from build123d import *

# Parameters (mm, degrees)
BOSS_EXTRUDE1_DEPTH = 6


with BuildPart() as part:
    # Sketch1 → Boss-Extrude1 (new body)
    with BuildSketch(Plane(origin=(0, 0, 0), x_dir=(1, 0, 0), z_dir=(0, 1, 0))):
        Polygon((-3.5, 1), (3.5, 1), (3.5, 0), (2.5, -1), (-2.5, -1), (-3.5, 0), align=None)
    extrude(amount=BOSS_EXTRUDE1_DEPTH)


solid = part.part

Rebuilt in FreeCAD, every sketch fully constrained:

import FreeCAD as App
import Part
import Sketcher

V = App.Vector


def add_polygon(sketch, points):
    """Adds a closed chain of lines whose ends are joined by coincident constraints."""
    first, n = sketch.GeometryCount, len(points)
    for a, b in zip(points, points[1:] + points[:1]):
        sketch.addGeometry(Part.LineSegment(App.Vector(*a, 0), App.Vector(*b, 0)), False)
    for i in range(n):
        sketch.addConstraint(Sketcher.Constraint("Coincident", first + i, 2, first + (i + 1) % n, 1))

doc = App.newDocument("Part")
body = doc.addObject("PartDesign::Body", "Body")

# Sketch on XZ plane
sketch1 = doc.addObject("Sketcher::SketchObject", "Sketch")
body.addObject(sketch1)
sketch1.AttachmentSupport = (doc.XZ_Plane, [""])
sketch1.MapMode = "FlatFace"
add_polygon(sketch1, [(3.5, -1), (-3.5, -1), (-3.5, 0), (-2.5, 1), (2.5, 1), (3.5, 0)])  # lines 0-5
sketch1.addConstraint([
    Sketcher.Constraint("Horizontal", 0),
    Sketcher.Constraint("Vertical", 1),
    Sketcher.Constraint("Horizontal", 3),
    Sketcher.Constraint("Vertical", 5),
    Sketcher.Constraint("Symmetric", 1, 2, 4, 2, -1, 1),
    Sketcher.Constraint("PointOnObject", 1, 2, -1),
    Sketcher.Constraint("Perpendicular", 2, 4),
    Sketcher.Constraint("Equal", 2, 4),
    Sketcher.Constraint("DistanceX", 0, 2, 0, 1, 7.0),
    Sketcher.Constraint("DistanceX", 3, 1, 3, 2, 5.0),
    Sketcher.Constraint("DistanceY", 1, 1, 1, 2, 1.0),
])
pad1 = doc.addObject("PartDesign::Pad", "Pad")
body.addObject(pad1)
pad1.Profile = sketch1
pad1.Length = 6
pad1.Reversed = True

doc.recompute()
